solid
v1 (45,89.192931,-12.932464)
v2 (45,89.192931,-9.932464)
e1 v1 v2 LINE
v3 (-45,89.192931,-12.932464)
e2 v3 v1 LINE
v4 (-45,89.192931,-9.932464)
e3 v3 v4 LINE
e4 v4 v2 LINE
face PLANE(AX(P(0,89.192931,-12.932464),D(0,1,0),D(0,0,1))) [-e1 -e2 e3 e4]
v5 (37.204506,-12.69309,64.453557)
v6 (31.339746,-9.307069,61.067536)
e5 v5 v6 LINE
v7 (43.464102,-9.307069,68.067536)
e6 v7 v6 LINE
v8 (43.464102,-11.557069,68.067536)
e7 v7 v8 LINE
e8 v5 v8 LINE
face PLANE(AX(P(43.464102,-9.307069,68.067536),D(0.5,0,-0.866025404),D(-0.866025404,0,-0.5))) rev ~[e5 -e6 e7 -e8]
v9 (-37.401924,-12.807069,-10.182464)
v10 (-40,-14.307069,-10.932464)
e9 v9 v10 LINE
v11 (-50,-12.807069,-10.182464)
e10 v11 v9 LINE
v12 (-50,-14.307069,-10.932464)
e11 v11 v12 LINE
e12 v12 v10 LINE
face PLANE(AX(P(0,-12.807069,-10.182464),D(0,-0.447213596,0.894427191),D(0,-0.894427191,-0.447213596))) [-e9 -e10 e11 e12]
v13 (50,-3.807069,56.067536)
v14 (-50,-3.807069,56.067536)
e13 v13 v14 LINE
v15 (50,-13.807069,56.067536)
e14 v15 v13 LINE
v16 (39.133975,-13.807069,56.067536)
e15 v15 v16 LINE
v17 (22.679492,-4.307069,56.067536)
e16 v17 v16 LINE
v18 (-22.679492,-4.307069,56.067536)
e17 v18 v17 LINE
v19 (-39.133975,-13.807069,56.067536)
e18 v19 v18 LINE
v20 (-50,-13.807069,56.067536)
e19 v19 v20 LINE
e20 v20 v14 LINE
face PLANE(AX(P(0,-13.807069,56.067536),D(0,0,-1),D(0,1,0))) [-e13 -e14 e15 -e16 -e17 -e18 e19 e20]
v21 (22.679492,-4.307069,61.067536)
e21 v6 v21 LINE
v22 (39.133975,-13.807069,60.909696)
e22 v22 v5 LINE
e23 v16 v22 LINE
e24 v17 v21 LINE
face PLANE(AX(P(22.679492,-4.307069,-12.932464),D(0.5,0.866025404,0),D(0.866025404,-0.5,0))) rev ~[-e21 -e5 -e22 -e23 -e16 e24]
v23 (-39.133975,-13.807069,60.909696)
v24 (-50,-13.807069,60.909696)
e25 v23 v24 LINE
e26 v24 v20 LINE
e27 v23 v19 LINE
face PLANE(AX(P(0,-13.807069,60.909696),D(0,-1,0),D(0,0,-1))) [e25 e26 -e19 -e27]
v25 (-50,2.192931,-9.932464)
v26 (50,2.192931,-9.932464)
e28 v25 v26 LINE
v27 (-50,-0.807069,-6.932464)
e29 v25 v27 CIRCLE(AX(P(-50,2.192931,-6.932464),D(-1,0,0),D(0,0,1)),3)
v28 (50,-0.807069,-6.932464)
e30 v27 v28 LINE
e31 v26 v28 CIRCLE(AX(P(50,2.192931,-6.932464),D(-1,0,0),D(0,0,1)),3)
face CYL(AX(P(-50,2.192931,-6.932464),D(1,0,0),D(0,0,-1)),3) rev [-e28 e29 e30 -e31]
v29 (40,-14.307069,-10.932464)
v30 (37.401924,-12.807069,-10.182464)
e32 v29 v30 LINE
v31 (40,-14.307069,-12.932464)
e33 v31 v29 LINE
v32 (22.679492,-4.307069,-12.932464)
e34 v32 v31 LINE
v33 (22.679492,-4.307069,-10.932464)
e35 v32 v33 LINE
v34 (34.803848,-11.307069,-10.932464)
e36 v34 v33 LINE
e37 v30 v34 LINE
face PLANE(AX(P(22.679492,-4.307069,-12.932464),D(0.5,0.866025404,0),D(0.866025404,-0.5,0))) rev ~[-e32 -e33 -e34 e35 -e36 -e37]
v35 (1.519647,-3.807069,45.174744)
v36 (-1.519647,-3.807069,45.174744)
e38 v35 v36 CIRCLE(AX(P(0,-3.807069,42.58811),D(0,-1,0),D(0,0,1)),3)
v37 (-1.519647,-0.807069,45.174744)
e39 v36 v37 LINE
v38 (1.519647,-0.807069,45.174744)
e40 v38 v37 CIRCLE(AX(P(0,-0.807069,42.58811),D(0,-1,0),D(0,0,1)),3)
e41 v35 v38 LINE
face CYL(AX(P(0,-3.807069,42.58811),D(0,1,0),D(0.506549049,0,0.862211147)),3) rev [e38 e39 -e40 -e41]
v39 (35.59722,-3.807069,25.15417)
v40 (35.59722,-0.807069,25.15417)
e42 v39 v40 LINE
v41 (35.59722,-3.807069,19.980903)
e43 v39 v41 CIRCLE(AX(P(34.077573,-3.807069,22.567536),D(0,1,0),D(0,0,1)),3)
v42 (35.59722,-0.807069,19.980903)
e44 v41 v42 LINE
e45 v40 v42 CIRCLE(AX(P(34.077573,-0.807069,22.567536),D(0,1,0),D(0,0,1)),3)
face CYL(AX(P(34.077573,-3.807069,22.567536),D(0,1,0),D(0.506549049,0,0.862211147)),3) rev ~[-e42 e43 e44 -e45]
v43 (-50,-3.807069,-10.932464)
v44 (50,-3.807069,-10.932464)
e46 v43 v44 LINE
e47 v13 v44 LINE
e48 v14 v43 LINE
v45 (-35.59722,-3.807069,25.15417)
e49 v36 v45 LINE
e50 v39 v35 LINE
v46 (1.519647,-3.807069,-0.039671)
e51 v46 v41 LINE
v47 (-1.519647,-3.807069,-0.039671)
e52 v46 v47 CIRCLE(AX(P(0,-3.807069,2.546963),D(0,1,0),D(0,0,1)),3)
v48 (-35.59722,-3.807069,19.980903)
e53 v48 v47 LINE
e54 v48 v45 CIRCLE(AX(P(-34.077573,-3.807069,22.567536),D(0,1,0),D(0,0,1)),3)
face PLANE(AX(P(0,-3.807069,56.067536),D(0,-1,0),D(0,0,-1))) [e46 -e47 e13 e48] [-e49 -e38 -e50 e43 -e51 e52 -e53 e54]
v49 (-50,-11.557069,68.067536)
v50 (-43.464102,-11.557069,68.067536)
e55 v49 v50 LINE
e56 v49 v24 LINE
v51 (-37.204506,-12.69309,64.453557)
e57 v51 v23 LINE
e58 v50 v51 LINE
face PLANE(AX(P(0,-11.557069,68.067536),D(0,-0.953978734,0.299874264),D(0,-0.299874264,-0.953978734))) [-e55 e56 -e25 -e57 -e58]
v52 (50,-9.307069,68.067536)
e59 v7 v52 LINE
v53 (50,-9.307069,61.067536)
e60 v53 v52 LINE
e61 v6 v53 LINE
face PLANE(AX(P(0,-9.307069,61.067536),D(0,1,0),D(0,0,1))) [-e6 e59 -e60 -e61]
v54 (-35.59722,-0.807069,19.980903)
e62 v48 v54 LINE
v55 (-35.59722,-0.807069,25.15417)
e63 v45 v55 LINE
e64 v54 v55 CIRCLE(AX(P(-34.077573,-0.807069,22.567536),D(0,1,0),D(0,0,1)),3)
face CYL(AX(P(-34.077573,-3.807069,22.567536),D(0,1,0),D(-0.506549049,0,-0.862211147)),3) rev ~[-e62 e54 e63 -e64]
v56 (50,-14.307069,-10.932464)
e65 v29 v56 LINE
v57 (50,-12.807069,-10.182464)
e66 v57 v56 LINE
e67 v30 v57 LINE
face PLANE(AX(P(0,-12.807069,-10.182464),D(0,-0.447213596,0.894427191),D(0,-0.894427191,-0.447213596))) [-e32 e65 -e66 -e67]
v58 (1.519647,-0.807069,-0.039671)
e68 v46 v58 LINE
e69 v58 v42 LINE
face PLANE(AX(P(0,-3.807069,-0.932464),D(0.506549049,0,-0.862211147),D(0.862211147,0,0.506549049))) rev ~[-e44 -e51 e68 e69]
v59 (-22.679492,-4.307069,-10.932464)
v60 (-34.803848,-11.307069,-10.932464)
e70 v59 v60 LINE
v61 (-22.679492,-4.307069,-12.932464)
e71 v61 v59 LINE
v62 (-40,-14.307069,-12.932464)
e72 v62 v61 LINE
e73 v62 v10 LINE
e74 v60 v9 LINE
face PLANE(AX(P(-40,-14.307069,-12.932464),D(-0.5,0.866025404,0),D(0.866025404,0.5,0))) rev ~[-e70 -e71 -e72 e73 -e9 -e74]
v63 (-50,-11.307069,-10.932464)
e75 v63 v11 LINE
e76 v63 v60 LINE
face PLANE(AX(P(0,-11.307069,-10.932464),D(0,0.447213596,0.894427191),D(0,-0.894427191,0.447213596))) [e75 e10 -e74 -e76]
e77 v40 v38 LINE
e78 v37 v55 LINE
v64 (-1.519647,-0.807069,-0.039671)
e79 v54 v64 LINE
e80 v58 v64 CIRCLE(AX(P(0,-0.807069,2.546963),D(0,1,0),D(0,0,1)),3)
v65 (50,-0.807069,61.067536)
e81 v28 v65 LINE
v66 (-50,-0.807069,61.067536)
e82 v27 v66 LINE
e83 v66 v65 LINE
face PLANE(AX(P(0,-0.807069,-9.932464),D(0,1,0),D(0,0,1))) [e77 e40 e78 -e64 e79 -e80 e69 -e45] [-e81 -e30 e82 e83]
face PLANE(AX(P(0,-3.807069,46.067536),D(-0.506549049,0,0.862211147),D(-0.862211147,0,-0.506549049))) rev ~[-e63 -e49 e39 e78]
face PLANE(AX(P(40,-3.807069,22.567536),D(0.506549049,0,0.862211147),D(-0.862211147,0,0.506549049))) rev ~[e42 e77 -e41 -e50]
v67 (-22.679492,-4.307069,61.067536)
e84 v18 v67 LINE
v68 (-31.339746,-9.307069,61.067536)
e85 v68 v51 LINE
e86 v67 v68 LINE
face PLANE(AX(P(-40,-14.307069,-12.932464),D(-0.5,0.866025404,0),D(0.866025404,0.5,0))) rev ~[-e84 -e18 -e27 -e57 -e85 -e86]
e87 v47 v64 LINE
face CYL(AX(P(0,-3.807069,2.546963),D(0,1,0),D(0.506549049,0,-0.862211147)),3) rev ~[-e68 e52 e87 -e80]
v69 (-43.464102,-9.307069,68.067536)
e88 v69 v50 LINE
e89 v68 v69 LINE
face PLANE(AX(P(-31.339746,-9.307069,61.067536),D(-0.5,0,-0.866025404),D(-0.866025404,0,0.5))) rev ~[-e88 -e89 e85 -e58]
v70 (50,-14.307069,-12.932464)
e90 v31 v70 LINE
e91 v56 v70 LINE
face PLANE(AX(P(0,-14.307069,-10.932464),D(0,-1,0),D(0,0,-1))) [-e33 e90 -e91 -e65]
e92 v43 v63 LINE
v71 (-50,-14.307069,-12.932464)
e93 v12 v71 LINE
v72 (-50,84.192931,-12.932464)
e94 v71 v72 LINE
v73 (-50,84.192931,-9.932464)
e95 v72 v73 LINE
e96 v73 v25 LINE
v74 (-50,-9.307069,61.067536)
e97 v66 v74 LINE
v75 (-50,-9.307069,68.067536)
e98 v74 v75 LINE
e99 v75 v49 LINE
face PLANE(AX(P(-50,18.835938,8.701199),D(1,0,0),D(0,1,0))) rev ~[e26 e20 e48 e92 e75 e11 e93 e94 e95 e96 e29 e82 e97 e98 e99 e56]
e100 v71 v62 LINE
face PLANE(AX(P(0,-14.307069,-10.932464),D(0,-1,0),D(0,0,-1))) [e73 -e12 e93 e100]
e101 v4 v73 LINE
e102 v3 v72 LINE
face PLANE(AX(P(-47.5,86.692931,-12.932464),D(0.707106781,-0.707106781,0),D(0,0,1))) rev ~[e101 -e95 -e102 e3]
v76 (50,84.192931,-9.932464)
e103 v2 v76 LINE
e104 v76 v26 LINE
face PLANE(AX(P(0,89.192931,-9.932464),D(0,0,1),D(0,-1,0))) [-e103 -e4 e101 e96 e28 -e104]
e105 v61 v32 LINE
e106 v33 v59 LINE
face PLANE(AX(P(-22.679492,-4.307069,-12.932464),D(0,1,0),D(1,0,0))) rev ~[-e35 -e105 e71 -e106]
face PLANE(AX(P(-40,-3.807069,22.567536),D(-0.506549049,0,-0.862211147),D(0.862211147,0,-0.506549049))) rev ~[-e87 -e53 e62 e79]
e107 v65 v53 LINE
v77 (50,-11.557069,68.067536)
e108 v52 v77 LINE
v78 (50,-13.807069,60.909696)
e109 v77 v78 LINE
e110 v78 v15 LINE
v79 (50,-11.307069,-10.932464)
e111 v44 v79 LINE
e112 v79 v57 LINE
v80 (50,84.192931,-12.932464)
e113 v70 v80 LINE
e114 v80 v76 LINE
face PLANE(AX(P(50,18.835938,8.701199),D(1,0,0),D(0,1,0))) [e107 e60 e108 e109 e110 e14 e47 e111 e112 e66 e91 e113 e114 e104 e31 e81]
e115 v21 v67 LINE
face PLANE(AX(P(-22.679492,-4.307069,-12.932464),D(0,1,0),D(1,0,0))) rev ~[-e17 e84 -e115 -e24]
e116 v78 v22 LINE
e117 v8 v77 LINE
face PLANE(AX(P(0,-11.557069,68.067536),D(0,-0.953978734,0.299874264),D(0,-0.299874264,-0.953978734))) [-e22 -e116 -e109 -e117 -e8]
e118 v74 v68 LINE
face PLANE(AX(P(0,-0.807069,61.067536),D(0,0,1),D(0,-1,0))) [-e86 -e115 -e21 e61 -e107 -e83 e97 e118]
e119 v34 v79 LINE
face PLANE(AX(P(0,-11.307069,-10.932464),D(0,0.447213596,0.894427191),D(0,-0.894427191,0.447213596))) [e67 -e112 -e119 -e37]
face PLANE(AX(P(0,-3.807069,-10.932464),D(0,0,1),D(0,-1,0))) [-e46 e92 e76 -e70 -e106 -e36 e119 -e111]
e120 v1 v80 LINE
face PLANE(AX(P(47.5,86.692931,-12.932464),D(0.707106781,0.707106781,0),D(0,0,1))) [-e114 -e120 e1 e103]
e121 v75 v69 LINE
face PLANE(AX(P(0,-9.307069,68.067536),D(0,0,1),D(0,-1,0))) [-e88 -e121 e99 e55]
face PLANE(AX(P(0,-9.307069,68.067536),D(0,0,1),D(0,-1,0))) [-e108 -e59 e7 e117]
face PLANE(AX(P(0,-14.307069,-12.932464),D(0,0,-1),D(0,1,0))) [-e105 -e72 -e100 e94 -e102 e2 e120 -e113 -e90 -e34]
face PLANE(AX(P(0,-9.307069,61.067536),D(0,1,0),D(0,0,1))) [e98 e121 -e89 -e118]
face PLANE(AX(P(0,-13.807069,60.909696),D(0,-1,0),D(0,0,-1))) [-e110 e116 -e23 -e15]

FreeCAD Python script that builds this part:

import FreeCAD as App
import Part
import Sketcher
Q = App.Units.Quantity


def edges_at(feature, points):
    """Names of the edges that pass closest to the given points."""
    edges = feature.Shape.Edges
    near = lambda p: min(range(len(edges)), key=lambda i: edges[i].distToShape(Part.Vertex(*p))[0])
    return sorted({f"Edge{near(p) + 1}" for p in points})

doc = App.newDocument("Part")
body = doc.addObject("PartDesign::Body", "Body")

sketch1 = body.newObject("Sketcher::SketchObject", "Sketch")
sketch1.AttachmentSupport = (doc.getObject("YZ_Plane"), [""])
sketch1.MapMode = "FlatFace"
sketch1.addGeometry(Part.LineSegment(App.Vector(-3.8, 56.1, 0), App.Vector(-3.8, -10.9, 0)), False)
sketch1.addGeometry(Part.LineSegment(App.Vector(-3.8, -10.9, 0), App.Vector(-11.3, -10.9, 0)), False)
sketch1.addGeometry(Part.LineSegment(App.Vector(-11.3, -10.9, 0), App.Vector(-12.8, -10.2, 0)), False)
sketch1.addGeometry(Part.LineSegment(App.Vector(-12.8, -10.2, 0), App.Vector(-14.3, -10.9, 0)), False)
sketch1.addGeometry(Part.LineSegment(App.Vector(-14.3, -10.9, 0), App.Vector(-14.3, -12.9, 0)), False)
sketch1.addGeometry(Part.LineSegment(App.Vector(-14.3, -12.9, 0), App.Vector(89.2, -12.9, 0)), False)
sketch1.addGeometry(Part.LineSegment(App.Vector(89.2, -12.9, 0), App.Vector(89.2, -9.9, 0)), False)
sketch1.addGeometry(Part.LineSegment(App.Vector(89.2, -9.9, 0), App.Vector(-0.8, -9.9, 0)), False)
sketch1.addGeometry(Part.LineSegment(App.Vector(-0.8, -9.9, 0), App.Vector(-0.8, 61.1, 0)), False)
sketch1.addGeometry(Part.LineSegment(App.Vector(-0.8, 61.1, 0), App.Vector(-9.3, 61.1, 0)), False)
sketch1.addGeometry(Part.LineSegment(App.Vector(-9.3, 61.1, 0), App.Vector(-9.3, 68.1, 0)), False)
sketch1.addGeometry(Part.LineSegment(App.Vector(-9.3, 68.1, 0), App.Vector(-11.6, 68.1, 0)), False)
sketch1.addGeometry(Part.LineSegment(App.Vector(-11.6, 68.1, 0), App.Vector(-13.8, 60.9, 0)), False)
sketch1.addGeometry(Part.LineSegment(App.Vector(-13.8, 60.9, 0), App.Vector(-13.8, 56.1, 0)), False)
sketch1.addGeometry(Part.LineSegment(App.Vector(-13.8, 56.1, 0), App.Vector(-3.8, 56.1, 0)), False)
sketch1.addConstraint(Sketcher.Constraint("Coincident", 0, 2, 1, 1))
sketch1.addConstraint(Sketcher.Constraint("Coincident", 1, 2, 2, 1))
sketch1.addConstraint(Sketcher.Constraint("Coincident", 2, 2, 3, 1))
sketch1.addConstraint(Sketcher.Constraint("Coincident", 3, 2, 4, 1))
sketch1.addConstraint(Sketcher.Constraint("Coincident", 4, 2, 5, 1))
sketch1.addConstraint(Sketcher.Constraint("Coincident", 5, 2, 6, 1))
sketch1.addConstraint(Sketcher.Constraint("Coincident", 6, 2, 7, 1))
sketch1.addConstraint(Sketcher.Constraint("Coincident", 7, 2, 8, 1))
sketch1.addConstraint(Sketcher.Constraint("Coincident", 8, 2, 9, 1))
sketch1.addConstraint(Sketcher.Constraint("Coincident", 9, 2, 10, 1))
sketch1.addConstraint(Sketcher.Constraint("Coincident", 10, 2, 11, 1))
sketch1.addConstraint(Sketcher.Constraint("Coincident", 11, 2, 12, 1))
sketch1.addConstraint(Sketcher.Constraint("Coincident", 12, 2, 13, 1))
sketch1.addConstraint(Sketcher.Constraint("Coincident", 13, 2, 14, 1))
sketch1.addConstraint(Sketcher.Constraint("Coincident", 14, 2, 0, 1))
sketch1.addConstraint(Sketcher.Constraint("Vertical", 0))
sketch1.addConstraint(Sketcher.Constraint("Horizontal", 1))
sketch1.addConstraint(Sketcher.Constraint("Vertical", 4))
sketch1.addConstraint(Sketcher.Constraint("Horizontal", 5))
sketch1.addConstraint(Sketcher.Constraint("Vertical", 6))
sketch1.addConstraint(Sketcher.Constraint("Horizontal", 7))
sketch1.addConstraint(Sketcher.Constraint("Vertical", 8))
sketch1.addConstraint(Sketcher.Constraint("Horizontal", 9))
sketch1.addConstraint(Sketcher.Constraint("Vertical", 10))
sketch1.addConstraint(Sketcher.Constraint("Horizontal", 11))
sketch1.addConstraint(Sketcher.Constraint("Vertical", 13))
sketch1.addConstraint(Sketcher.Constraint("Horizontal", 14))
sketch1.addConstraint(Sketcher.Constraint("Horizontal", 1, 2, 3, 2))
sketch1.addConstraint(Sketcher.Constraint("Equal", 2, 3))
sketch1.addConstraint(Sketcher.Constraint("DistanceX", 7, 2, 7, 1, 90.0))
sketch1.addConstraint(Sketcher.Constraint("DistanceX", 14, 1, 14, 2, 10.0))
sketch1.addConstraint(Sketcher.Constraint("DistanceY", 0, 2, 0, 1, 67.0))
sketch1.addConstraint(Sketcher.Constraint("DistanceY", 4, 2, 4, 1, 2.0))
sketch1.addConstraint(Sketcher.Constraint("DistanceY", 6, 1, 6, 2, 3.0))
sketch1.addConstraint(Sketcher.Constraint("DistanceY", 8, 1, 8, 2, 71.0))
sketch1.addConstraint(Sketcher.Constraint("DistanceY", 10, 1, 10, 2, 7.0))
sketch1.addConstraint(Sketcher.Constraint("DistanceX", 1, 2, 1, 1, 7.5))
sketch1.addConstraint(Sketcher.Constraint("DistanceX", 5, 1, 5, 2, 103.5))
sketch1.addConstraint(Sketcher.Constraint("DistanceX", 9, 2, 9, 1, 8.5))
sketch1.addConstraint(Sketcher.Constraint("DistanceX", 2, 2, 0, 2, 9.0))
sketch1.addConstraint(Sketcher.Constraint("DistanceX", 11, 2, 11, 1, 2.25))
sketch1.addConstraint(Sketcher.Constraint("DistanceY", 1, 2, 2, 2, 0.75))
sketch1.addConstraint(Sketcher.Constraint("DistanceY", 13, 2, 13, 1, 4.84216))
sketch1.addConstraint(Sketcher.Constraint("DistanceX", 0, 2, -1, 1, 3.807069))
sketch1.addConstraint(Sketcher.Constraint("DistanceY", 0, 2, -1, 1, 10.932464))
pad1 = body.newObject("PartDesign::Pad", "Pad")
pad1.Profile = sketch1
pad1.Length = 100
pad1.Midplane = True
doc.recompute()

chamfer = body.newObject("PartDesign::Chamfer", "Chamfer")
chamfer.Base = (pad1, edges_at(pad1, [(50, 89.193, -11.432), (-50, 89.193, -11.432)]))
chamfer.Size = 5
doc.recompute()

fillet = body.newObject("PartDesign::Fillet", "Fillet")
fillet.Base = (chamfer, edges_at(chamfer, [(0, -0.807, -9.932)]))
fillet.Radius = 3

sketch2 = body.newObject("Sketcher::SketchObject", "Sketch001")
sketch2.AttachmentSupport = (doc.getObject("XY_Plane"), [""])
sketch2.MapMode = "FlatFace"
sketch2.AttachmentOffset = App.Placement(App.Vector(0, 0, -12.932464), App.Rotation())
sketch2.addGeometry(Part.LineSegment(App.Vector(40, -14, 0), App.Vector(-40, -14, 0)), False)
sketch2.addGeometry(Part.LineSegment(App.Vector(-40, -14, 0), App.Vector(-23, -4, 0)), False)
sketch2.addGeometry(Part.LineSegment(App.Vector(-23, -4, 0), App.Vector(23, -4, 0)), False)
sketch2.addGeometry(Part.LineSegment(App.Vector(23, -4, 0), App.Vector(40, -14, 0)), False)
sketch2.addConstraint(Sketcher.Constraint("Coincident", 0, 2, 1, 1))
sketch2.addConstraint(Sketcher.Constraint("Coincident", 1, 2, 2, 1))
sketch2.addConstraint(Sketcher.Constraint("Coincident", 2, 2, 3, 1))
sketch2.addConstraint(Sketcher.Constraint("Coincident", 3, 2, 0, 1))
sketch2.addConstraint(Sketcher.Constraint("Horizontal", 0))
sketch2.addConstraint(Sketcher.Constraint("Horizontal", 2))
sketch2.addConstraint(Sketcher.Constraint("Equal", 1, 3))
sketch2.addConstraint(Sketcher.Constraint("DistanceX", 0, 2, 0, 1, 80.0))
sketch2.addConstraint(Sketcher.Constraint("Angle", 1, Q("30 deg")))
sketch2.addConstraint(Sketcher.Constraint("Distance", 1, 20.0))
sketch2.addConstraint(Sketcher.Constraint("DistanceX", 0, 2, -1, 1, 40.0))
sketch2.addConstraint(Sketcher.Constraint("DistanceY", 0, 2, -1, 1, 14.307069))
pocket1 = body.newObject("PartDesign::Pocket", "Pocket")
pocket1.Profile = sketch2
pocket1.Type = "ThroughAll"
pocket1.Reversed = True

sketch3 = body.newObject("Sketcher::SketchObject", "Sketch002")
sketch3.AttachmentSupport = (doc.getObject("XZ_Plane"), [""])
sketch3.MapMode = "FlatFace"
sketch3.AttachmentOffset = App.Placement(App.Vector(0, 0, 9.307069), App.Rotation())
sketch3.addGeometry(Part.LineSegment(App.Vector(43, 68, 0), App.Vector(31, 61, 0)), False)
sketch3.addGeometry(Part.LineSegment(App.Vector(31, 61, 0), App.Vector(31, 68, 0)), False)
sketch3.addGeometry(Part.LineSegment(App.Vector(31, 68, 0), App.Vector(43, 68, 0)), False)
sketch3.addGeometry(Part.LineSegment(App.Vector(-31, 68, 0), App.Vector(-31, 61, 0)), False)
sketch3.addGeometry(Part.LineSegment(App.Vector(-31, 61, 0), App.Vector(-43, 68, 0)), False)
sketch3.addGeometry(Part.LineSegment(App.Vector(-43, 68, 0), App.Vector(-31, 68, 0)), False)
sketch3.addConstraint(Sketcher.Constraint("Coincident", 0, 2, 1, 1))
sketch3.addConstraint(Sketcher.Constraint("Coincident", 1, 2, 2, 1))
sketch3.addConstraint(Sketcher.Constraint("Coincident", 2, 2, 0, 1))
sketch3.addConstraint(Sketcher.Constraint("Coincident", 3, 2, 4, 1))
sketch3.addConstraint(Sketcher.Constraint("Coincident", 4, 2, 5, 1))
sketch3.addConstraint(Sketcher.Constraint("Coincident", 5, 2, 3, 1))
sketch3.addConstraint(Sketcher.Constraint("Vertical", 1))
sketch3.addConstraint(Sketcher.Constraint("Horizontal", 2))
sketch3.addConstraint(Sketcher.Constraint("Vertical", 3))
sketch3.addConstraint(Sketcher.Constraint("Horizontal", 5))
sketch3.addConstraint(Sketcher.Constraint("Symmetric", 0, 2, 3, 2, -2))
sketch3.addConstraint(Sketcher.Constraint("Symmetric", 2, 2, 4, 2, -2))
sketch3.addConstraint(Sketcher.Constraint("DistanceY", 1, 1, 1, 2, 7.0))
sketch3.addConstraint(Sketcher.Constraint("Angle", 0, Q("-150 deg")))
sketch3.addConstraint(Sketcher.Constraint("DistanceX", -1, 1, 2, 2, 43.464102))
sketch3.addConstraint(Sketcher.Constraint("DistanceY", -1, 1, 0, 2, 61.067536))
pocket2 = body.newObject("PartDesign::Pocket", "Pocket001")
pocket2.Profile = sketch3
pocket2.Type = "ThroughAll"
pocket2.Reversed = True

sketch4 = body.newObject("Sketcher::SketchObject", "Sketch003")
sketch4.AttachmentSupport = (doc.getObject("XZ_Plane"), [""])
sketch4.MapMode = "FlatFace"
sketch4.AttachmentOffset = App.Placement(App.Vector(0, 0, 3.807069), App.Rotation())
sketch4.addGeometry(Part.LineSegment(App.Vector(0, 46, 0), App.Vector(-40, 23, 0)), False)
sketch4.addGeometry(Part.LineSegment(App.Vector(-40, 23, 0), App.Vector(0, -1, 0)), False)
sketch4.addGeometry(Part.LineSegment(App.Vector(0, -1, 0), App.Vector(40, 23, 0)), False)
sketch4.addGeometry(Part.LineSegment(App.Vector(40, 23, 0), App.Vector(0, 46, 0)), False)
sketch4.addConstraint(Sketcher.Constraint("Coincident", 0, 2, 1, 1))
sketch4.addConstraint(Sketcher.Constraint("Coincident", 1, 2, 2, 1))
sketch4.addConstraint(Sketcher.Constraint("Coincident", 2, 2, 3, 1))
sketch4.addConstraint(Sketcher.Constraint("Coincident", 3, 2, 0, 1))
sketch4.addConstraint(Sketcher.Constraint("Symmetric", 0, 2, 2, 2, -2))
sketch4.addConstraint(Sketcher.Constraint("PointOnObject", 1, 2, -2))
sketch4.addConstraint(Sketcher.Constraint("PointOnObject", 3, 2, -2))
sketch4.addConstraint(Sketcher.Constraint("Parallel", 0, 2))
sketch4.addConstraint(Sketcher.Constraint("DistanceX", 0, 2, -1, 1, 40.0))
sketch4.addConstraint(Sketcher.Constraint("DistanceY", 1, 2, 3, 2, 47.0))
sketch4.addConstraint(Sketcher.Constraint("DistanceY", -1, 1, 0, 2, 22.567536))
pocket3 = body.newObject("PartDesign::Pocket", "Pocket002")
pocket3.Profile = sketch4
pocket3.Type = "ThroughAll"
doc.recompute()

fillet2 = body.newObject("PartDesign::Fillet", "Fillet001")
fillet2.Base = (pocket3, edges_at(pocket3, [
    (-40, -2.307, 22.568),
    (0, -2.307, 46.068),
    (40, -2.307, 22.568),
    (0, -2.307, -0.932),
]))
fillet2.Radius = 3

doc.recompute()
